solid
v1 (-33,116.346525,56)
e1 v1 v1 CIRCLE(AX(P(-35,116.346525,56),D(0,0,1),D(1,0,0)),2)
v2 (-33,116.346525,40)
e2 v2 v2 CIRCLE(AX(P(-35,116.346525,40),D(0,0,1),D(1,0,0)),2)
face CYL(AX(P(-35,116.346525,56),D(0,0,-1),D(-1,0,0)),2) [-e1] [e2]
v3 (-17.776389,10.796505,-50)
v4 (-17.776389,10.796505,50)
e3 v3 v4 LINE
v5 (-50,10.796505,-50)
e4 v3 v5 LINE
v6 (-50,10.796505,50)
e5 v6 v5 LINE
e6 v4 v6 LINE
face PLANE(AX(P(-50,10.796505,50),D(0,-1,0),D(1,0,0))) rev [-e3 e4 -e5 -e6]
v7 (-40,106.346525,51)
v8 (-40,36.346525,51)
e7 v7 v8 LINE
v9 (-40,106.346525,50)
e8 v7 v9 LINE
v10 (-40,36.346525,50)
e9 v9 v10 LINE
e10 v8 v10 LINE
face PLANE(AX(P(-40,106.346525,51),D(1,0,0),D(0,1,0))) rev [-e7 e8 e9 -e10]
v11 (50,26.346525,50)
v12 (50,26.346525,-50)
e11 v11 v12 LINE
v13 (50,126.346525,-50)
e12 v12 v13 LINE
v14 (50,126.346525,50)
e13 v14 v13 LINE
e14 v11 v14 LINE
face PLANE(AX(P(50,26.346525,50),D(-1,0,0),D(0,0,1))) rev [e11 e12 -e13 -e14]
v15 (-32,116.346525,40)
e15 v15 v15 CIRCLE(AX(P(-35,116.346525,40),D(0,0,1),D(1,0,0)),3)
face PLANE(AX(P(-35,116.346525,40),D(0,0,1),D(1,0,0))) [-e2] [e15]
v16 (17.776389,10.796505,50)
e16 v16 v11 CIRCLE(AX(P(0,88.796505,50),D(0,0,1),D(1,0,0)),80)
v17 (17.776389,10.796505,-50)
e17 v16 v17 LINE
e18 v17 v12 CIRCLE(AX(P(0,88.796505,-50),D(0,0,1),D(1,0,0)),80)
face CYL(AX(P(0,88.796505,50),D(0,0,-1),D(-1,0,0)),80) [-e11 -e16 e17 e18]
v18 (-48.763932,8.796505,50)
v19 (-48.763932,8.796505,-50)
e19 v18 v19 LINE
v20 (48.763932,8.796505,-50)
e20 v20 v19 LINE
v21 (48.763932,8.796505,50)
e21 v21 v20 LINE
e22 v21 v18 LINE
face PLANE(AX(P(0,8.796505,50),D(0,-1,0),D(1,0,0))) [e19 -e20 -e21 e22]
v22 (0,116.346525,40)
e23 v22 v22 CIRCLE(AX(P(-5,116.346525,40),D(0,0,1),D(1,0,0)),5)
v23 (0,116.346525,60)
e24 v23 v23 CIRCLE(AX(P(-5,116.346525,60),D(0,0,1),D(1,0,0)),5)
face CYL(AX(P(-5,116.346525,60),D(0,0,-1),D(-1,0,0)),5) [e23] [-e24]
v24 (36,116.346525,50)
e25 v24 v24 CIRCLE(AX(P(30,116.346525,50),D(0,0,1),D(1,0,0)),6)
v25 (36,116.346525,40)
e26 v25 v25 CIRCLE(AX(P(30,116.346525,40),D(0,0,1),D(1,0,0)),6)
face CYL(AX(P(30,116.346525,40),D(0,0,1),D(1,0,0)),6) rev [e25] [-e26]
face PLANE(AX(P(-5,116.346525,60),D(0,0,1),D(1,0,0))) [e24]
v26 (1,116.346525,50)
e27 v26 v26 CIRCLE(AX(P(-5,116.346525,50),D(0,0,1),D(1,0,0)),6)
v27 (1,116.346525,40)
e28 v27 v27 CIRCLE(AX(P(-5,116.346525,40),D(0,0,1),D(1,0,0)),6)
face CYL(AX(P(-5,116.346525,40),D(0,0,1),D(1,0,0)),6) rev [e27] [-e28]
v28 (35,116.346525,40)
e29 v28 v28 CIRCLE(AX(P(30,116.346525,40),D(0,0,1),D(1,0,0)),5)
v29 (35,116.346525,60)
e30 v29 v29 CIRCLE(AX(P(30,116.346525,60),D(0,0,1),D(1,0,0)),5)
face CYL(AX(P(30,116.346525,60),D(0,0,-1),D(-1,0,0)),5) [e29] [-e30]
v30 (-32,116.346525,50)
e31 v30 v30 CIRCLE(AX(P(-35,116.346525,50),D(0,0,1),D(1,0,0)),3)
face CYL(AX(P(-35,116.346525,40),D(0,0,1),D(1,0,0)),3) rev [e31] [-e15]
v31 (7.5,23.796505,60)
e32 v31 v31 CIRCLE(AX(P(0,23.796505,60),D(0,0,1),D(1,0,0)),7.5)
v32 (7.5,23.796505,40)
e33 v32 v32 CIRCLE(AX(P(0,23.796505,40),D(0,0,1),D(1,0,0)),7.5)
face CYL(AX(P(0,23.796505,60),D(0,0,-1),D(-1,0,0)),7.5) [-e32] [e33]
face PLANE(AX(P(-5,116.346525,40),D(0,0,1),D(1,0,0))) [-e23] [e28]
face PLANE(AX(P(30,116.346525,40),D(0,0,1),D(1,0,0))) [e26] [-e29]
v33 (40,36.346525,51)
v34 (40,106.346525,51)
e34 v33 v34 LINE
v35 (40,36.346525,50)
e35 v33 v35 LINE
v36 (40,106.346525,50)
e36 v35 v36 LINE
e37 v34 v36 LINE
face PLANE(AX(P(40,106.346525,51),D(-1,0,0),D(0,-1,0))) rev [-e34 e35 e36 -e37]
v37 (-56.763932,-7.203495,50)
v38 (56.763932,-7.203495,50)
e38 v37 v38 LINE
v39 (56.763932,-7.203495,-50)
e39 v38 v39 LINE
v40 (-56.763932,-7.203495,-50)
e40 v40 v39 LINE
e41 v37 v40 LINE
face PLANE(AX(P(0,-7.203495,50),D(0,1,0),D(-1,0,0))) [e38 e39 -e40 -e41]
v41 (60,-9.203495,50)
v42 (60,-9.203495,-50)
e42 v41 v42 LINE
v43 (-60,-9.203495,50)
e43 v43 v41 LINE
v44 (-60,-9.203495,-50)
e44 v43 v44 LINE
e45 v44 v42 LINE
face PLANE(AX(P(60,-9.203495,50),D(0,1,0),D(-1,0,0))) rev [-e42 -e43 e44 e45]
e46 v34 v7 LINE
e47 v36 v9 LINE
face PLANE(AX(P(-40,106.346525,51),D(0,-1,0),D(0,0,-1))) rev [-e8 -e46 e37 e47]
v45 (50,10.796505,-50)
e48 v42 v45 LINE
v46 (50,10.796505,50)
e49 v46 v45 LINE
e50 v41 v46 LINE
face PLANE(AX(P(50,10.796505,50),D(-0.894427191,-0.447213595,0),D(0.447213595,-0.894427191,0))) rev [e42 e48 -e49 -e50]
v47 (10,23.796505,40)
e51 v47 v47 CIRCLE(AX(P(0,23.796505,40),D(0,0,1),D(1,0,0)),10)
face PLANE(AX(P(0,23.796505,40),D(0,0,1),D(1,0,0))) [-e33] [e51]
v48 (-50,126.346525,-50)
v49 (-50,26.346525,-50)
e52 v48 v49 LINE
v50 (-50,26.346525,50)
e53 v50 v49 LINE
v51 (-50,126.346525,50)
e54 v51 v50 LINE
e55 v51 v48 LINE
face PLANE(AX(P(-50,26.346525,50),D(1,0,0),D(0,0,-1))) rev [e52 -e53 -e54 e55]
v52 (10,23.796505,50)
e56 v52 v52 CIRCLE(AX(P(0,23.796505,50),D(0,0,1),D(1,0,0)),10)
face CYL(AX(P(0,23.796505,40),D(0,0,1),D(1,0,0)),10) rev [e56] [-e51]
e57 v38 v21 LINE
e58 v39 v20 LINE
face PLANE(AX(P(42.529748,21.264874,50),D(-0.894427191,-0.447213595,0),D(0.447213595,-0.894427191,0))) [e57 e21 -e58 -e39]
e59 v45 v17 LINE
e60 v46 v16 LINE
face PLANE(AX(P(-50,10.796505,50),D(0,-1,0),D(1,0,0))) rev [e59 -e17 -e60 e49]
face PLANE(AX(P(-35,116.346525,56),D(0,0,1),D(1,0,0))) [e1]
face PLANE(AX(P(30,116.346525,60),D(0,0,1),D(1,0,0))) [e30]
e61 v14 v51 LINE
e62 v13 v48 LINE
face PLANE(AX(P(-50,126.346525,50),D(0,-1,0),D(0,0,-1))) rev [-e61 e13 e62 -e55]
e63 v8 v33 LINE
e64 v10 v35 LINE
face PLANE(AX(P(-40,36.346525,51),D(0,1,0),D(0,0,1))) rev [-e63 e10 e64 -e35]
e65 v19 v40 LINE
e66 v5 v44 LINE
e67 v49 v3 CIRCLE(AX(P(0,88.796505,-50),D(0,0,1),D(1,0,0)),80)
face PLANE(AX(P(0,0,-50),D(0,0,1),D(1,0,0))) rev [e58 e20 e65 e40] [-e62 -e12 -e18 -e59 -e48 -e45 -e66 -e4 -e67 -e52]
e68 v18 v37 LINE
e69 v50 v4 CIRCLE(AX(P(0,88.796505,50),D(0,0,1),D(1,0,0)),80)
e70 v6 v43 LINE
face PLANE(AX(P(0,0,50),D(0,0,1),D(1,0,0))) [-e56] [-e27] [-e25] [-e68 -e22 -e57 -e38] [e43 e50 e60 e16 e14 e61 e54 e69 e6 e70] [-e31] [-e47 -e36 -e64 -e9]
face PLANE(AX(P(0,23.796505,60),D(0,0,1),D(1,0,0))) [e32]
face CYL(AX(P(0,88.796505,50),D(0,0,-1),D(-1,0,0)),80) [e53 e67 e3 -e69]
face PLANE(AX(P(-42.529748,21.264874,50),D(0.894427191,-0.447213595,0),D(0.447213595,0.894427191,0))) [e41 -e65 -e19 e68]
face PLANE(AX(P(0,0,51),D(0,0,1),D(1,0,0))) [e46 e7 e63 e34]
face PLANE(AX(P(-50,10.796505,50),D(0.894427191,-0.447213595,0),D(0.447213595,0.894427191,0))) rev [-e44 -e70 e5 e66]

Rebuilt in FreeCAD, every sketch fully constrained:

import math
import FreeCAD as App
import Part
import Sketcher
Q = App.Units.Quantity


def add_polygon(sketch, points):
    """Adds a closed chain of lines whose ends are joined by coincident constraints."""
    first, n = sketch.GeometryCount, len(points)
    for a, b in zip(points, points[1:] + points[:1]):
        sketch.addGeometry(Part.LineSegment(App.Vector(*a, 0), App.Vector(*b, 0)), False)
    for i in range(n):
        sketch.addConstraint(Sketcher.Constraint("Coincident", first + i, 2, first + (i + 1) % n, 1))

doc = App.newDocument("Part")
body = doc.addObject("PartDesign::Body", "Body")

sketch1 = body.newObject("Sketcher::SketchObject", "Sketch")
sketch1.AttachmentSupport = (doc.getObject("XY_Plane"), [""])
sketch1.MapMode = "FlatFace"
add_polygon(sketch1, [(50, 11), (-50, 11), (-60, -9), (60, -9)])
add_polygon(sketch1, [(-49, 9), (49, 9), (57, -7), (-57, -7)])
sketch1.addConstraint([
    Sketcher.Constraint("Horizontal", 0),
    Sketcher.Constraint("Horizontal", 2),
    Sketcher.Constraint("Horizontal", 4),
    Sketcher.Constraint("Horizontal", 6),
    Sketcher.Constraint("Parallel", 3, 5),
    Sketcher.Constraint("Parallel", 1, 7),
    Sketcher.Constraint("Equal", 1, 3),
    Sketcher.Constraint("DistanceX", 0, 2, 0, 1, Q("100 mm")),
    Sketcher.Constraint("DistanceX", 2, 1, 2, 2, Q("120 mm")),
    Sketcher.Constraint("DistanceX", 0, 2, -1, 1, Q("50 mm")),
    Sketcher.Constraint("DistanceY", 1, 2, 0, 2, Q("20 mm")),
    Sketcher.Constraint("DistanceY", 4, 2, 3, 2, Q("2 mm")),
    Sketcher.Constraint("DistanceY", 2, 2, 5, 2, Q("2 mm")),
    Sketcher.Constraint("DistanceX", 4, 1, 4, 2, Q("97.527864 mm")),
    Sketcher.Constraint("DistanceY", -1, 1, 0, 2, Q("10.796505 mm")),
    Sketcher.Constraint("DistanceX", -1, 1, 4, 2, Q("48.763932 mm")),
])
pad1 = body.newObject("PartDesign::Pad", "Pad")
pad1.Profile = sketch1
pad1.Length = 100
pad1.Midplane = True

sketch2 = body.newObject("Sketcher::SketchObject", "Sketch001")
sketch2.AttachmentSupport = (doc.getObject("XY_Plane"), [""])
sketch2.MapMode = "FlatFace"
sketch2.addGeometry([
    Part.LineSegment(App.Vector(50, 26, 0), App.Vector(50, 126, 0)),
    Part.LineSegment(App.Vector(50, 126, 0), App.Vector(-50, 126, 0)),
    Part.LineSegment(App.Vector(-50, 126, 0), App.Vector(-50, 26, 0)),
    Part.ArcOfCircle(Part.Circle(App.Vector(0, 89, 0), App.Vector(0, 0, 1), 80), math.radians(-129), math.radians(-51)),
], False)
sketch2.addConstraint([
    Sketcher.Constraint("Coincident", 0, 2, 1, 1),
    Sketcher.Constraint("Coincident", 1, 2, 2, 1),
    Sketcher.Constraint("Coincident", 2, 2, 3, 1),
    Sketcher.Constraint("Coincident", 3, 2, 0, 1),
    Sketcher.Constraint("Vertical", 0),
    Sketcher.Constraint("Horizontal", 1),
    Sketcher.Constraint("Vertical", 2),
    Sketcher.Constraint("Symmetric", 2, 2, 3, 2, -2),
    Sketcher.Constraint("Equal", 1, 0),
    Sketcher.Constraint("Radius", 3, Q("80 mm")),
    Sketcher.Constraint("DistanceX", 1, 2, 1, 1, Q("100 mm")),
    Sketcher.Constraint("DistanceY", -1, 1, 3, 3, Q("88.796505 mm")),
])
pad2 = body.newObject("PartDesign::Pad", "Pad001")
pad2.Profile = sketch2
pad2.Length = 100
pad2.Midplane = True

sketch3 = body.newObject("Sketcher::SketchObject", "Sketch002")
sketch3.AttachmentSupport = (doc.getObject("XY_Plane"), [""])
sketch3.MapMode = "FlatFace"
sketch3.AttachmentOffset = App.Placement(App.Vector(0, 0, 50), App.Rotation())
add_polygon(sketch3, [(-40, 106), (-40, 36), (40, 36), (40, 106)])
sketch3.addConstraint([
    Sketcher.Constraint("Vertical", 0),
    Sketcher.Constraint("Horizontal", 1),
    Sketcher.Constraint("Vertical", 2),
    Sketcher.Constraint("Horizontal", 3),
    Sketcher.Constraint("DistanceX", 1, 1, 1, 2, Q("80 mm")),
    Sketcher.Constraint("DistanceY", 0, 2, 0, 1, Q("70 mm")),
    Sketcher.Constraint("DistanceX", 0, 2, -1, 1, Q("40 mm")),
    Sketcher.Constraint("DistanceY", -1, 1, 0, 2, Q("36.346525 mm")),
])
pad3 = body.newObject("PartDesign::Pad", "Pad002")
pad3.Profile = sketch3
pad3.Length = 1

sketch4 = body.newObject("Sketcher::SketchObject", "Sketch003")
sketch4.AttachmentSupport = (doc.getObject("XY_Plane"), [""])
sketch4.MapMode = "FlatFace"
sketch4.AttachmentOffset = App.Placement(App.Vector(0, 0, 50), App.Rotation())
sketch4.addGeometry([
    Part.Circle(App.Vector(-35, 116.3, 0), App.Vector(0, 0, 1), 3),
    Part.Circle(App.Vector(-5, 116.3, 0), App.Vector(0, 0, 1), 6),
    Part.Circle(App.Vector(30, 116.3, 0), App.Vector(0, 0, 1), 6),
    Part.Circle(App.Vector(0, 23.8, 0), App.Vector(0, 0, 1), 10),
], False)
sketch4.addConstraint([
    Sketcher.Constraint("Equal", 1, 2),
    Sketcher.Constraint("PointOnObject", 3, 3, -2),
    Sketcher.Constraint("Horizontal", 0, 3, 1, 3),
    Sketcher.Constraint("Horizontal", 1, 3, 2, 3),
    Sketcher.Constraint("Diameter", 0, Q("6 mm")),
    Sketcher.Constraint("Diameter", 1, Q("12 mm")),
    Sketcher.Constraint("Diameter", 3, Q("20 mm")),
    Sketcher.Constraint("DistanceX", 0, 3, -1, 1, Q("35 mm")),
    Sketcher.Constraint("DistanceX", 1, 3, -1, 1, Q("5 mm")),
    Sketcher.Constraint("DistanceX", -1, 1, 2, 3, Q("30 mm")),
    Sketcher.Constraint("DistanceY", 3, 3, 1, 3, Q("92.55002 mm")),
    Sketcher.Constraint("DistanceY", -1, 1, 0, 3, Q("116.346525 mm")),
])
pocket1 = body.newObject("PartDesign::Pocket", "Pocket")
pocket1.Profile = sketch4
pocket1.Length = 10

sketch5 = body.newObject("Sketcher::SketchObject", "Sketch004")
sketch5.AttachmentSupport = (doc.getObject("XY_Plane"), [""])
sketch5.MapMode = "FlatFace"
sketch5.AttachmentOffset = App.Placement(App.Vector(0, 0, 40), App.Rotation())
sketch5.addGeometry([
    Part.Circle(App.Vector(0, 24, 0), App.Vector(0, 0, 1), 8),
    Part.Circle(App.Vector(-5, 116, 0), App.Vector(0, 0, 1), 5),
    Part.Circle(App.Vector(30, 116, 0), App.Vector(0, 0, 1), 5),
], False)
sketch5.addConstraint([
    Sketcher.Constraint("Equal", 1, 2),
    Sketcher.Constraint("PointOnObject", 0, 3, -2),
    Sketcher.Constraint("Horizontal", 1, 3, 2, 3),
    Sketcher.Constraint("Diameter", 0, Q("15 mm")),
    Sketcher.Constraint("Diameter", 1, Q("10 mm")),
    Sketcher.Constraint("DistanceX", 1, 3, -1, 1, Q("5 mm")),
    Sketcher.Constraint("DistanceX", -1, 1, 2, 3, Q("30 mm")),
    Sketcher.Constraint("DistanceY", 0, 3, 1, 3, Q("92.55002 mm")),
    Sketcher.Constraint("DistanceY", -1, 1, 0, 3, Q("23.796505 mm")),
])
pad4 = body.newObject("PartDesign::Pad", "Pad003")
pad4.Profile = sketch5
pad4.Length = 20

sketch6 = body.newObject("Sketcher::SketchObject", "Sketch005")
sketch6.AttachmentSupport = (doc.getObject("XY_Plane"), [""])
sketch6.MapMode = "FlatFace"
sketch6.AttachmentOffset = App.Placement(App.Vector(0, 0, 40), App.Rotation())
sketch6.addGeometry(Part.Circle(App.Vector(-35, 116.3, 0), App.Vector(0, 0, 1), 2), False)
sketch6.addConstraint([
    Sketcher.Constraint("Diameter", 0, Q("4 mm")),
    Sketcher.Constraint("DistanceX", 0, 3, -1, 1, Q("35 mm")),
    Sketcher.Constraint("DistanceY", -1, 1, 0, 3, Q("116.346525 mm")),
])
pad5 = body.newObject("PartDesign::Pad", "Pad004")
pad5.Profile = sketch6
pad5.Length = 16

doc.recompute()
